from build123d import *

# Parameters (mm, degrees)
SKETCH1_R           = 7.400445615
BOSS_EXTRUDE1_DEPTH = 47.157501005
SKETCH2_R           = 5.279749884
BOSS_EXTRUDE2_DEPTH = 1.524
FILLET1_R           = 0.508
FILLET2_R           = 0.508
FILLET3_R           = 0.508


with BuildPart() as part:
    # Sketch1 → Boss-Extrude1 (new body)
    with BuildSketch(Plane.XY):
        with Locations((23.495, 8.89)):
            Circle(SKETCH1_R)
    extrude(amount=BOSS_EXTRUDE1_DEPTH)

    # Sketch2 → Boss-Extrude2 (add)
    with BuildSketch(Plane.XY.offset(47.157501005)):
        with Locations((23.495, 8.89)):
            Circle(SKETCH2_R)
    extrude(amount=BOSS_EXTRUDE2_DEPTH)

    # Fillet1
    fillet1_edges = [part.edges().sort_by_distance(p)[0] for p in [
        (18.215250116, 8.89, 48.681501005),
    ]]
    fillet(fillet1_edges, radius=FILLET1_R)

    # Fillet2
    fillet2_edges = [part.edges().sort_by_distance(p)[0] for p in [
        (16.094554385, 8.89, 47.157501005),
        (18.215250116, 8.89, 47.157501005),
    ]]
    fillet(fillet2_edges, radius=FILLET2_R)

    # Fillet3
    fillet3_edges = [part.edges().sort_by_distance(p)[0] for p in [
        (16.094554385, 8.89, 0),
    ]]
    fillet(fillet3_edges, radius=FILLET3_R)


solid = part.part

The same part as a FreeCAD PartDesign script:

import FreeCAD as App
import Part
import Sketcher

V = App.Vector
Q = App.Units.Quantity


def edges_at(feature, points):
    """Names of the edges that pass closest to the given points."""
    edges = feature.Shape.Edges
    near = lambda p: min(range(len(edges)), key=lambda i: edges[i].distToShape(Part.Vertex(*p))[0])
    return sorted({f"Edge{near(p) + 1}" for p in points})

doc = App.newDocument("Part")
params = doc.addObject("Spreadsheet::Sheet", "Params")
for row, (alias, value) in enumerate([
    ("pad1_length", "47.157501 mm"),
    ("pad2_length", "0.06 in"),
    ("fillet_radius", "0.02 in"),
    ("fillet2_radius", "0.02 in"),
    ("fillet3_radius", "0.02 in"),
], start=1):
    params.set(f"A{row}", alias)
    params.set(f"B{row}", "=" + value)
    params.setAlias(f"B{row}", alias)

body = doc.addObject("PartDesign::Body", "Body")

sketch1 = body.newObject("Sketcher::SketchObject", "Sketch")
sketch1.AttachmentSupport = (doc.getObject("XY_Plane"), [""])
sketch1.MapMode = "FlatFace"
sketch1.addGeometry(Part.Circle(V(23, 9, 0), V(0, 0, 1), 7), False)
sketch1.addConstraint([
    Sketcher.Constraint("DistanceY", -1, 1, 0, 3, Q("0.35 in")),
    Sketcher.Constraint("Diameter", 0, 14.800891),
    Sketcher.Constraint("DistanceX", -1, 1, 0, 3, Q("0.925 in")),
])
pad1 = body.newObject("PartDesign::Pad", "Pad")
pad1.Profile = sketch1
pad1.setExpression("Length", "Params.pad1_length")

sketch2 = body.newObject("Sketcher::SketchObject", "Sketch001")
sketch2.AttachmentSupport = (doc.getObject("XY_Plane"), [""])
sketch2.MapMode = "FlatFace"
sketch2.AttachmentOffset = App.Placement(V(0, 0, 47.157501), App.Rotation())
sketch2.addGeometry(Part.Circle(V(23, 9, 0), V(0, 0, 1), 5), False)
sketch2.addConstraint([
    Sketcher.Constraint("Diameter", 0, 10.5595),
    Sketcher.Constraint("DistanceY", -1, 1, 0, 3, Q("0.35 in")),
    Sketcher.Constraint("DistanceX", -1, 1, 0, 3, Q("0.925 in")),
])
pad2 = body.newObject("PartDesign::Pad", "Pad001")
pad2.Profile = sketch2
pad2.setExpression("Length", "Params.pad2_length")
doc.recompute()

fillet = body.newObject("PartDesign::Fillet", "Fillet")
fillet.Base = (pad2, edges_at(pad2, [(18.215, 8.89, 48.682)]))
fillet.setExpression("Radius", "Params.fillet_radius")
doc.recompute()

fillet2 = body.newObject("PartDesign::Fillet", "Fillet001")
fillet2.Base = (fillet, edges_at(fillet, [(16.095, 8.89, 47.158), (18.215, 8.89, 47.158)]))
fillet2.setExpression("Radius", "Params.fillet2_radius")
doc.recompute()

fillet3 = body.newObject("PartDesign::Fillet", "Fillet002")
fillet3.Base = (fillet2, edges_at(fillet2, [(16.095, 8.89, 0)]))
fillet3.setExpression("Radius", "Params.fillet3_radius")

doc.recompute()
